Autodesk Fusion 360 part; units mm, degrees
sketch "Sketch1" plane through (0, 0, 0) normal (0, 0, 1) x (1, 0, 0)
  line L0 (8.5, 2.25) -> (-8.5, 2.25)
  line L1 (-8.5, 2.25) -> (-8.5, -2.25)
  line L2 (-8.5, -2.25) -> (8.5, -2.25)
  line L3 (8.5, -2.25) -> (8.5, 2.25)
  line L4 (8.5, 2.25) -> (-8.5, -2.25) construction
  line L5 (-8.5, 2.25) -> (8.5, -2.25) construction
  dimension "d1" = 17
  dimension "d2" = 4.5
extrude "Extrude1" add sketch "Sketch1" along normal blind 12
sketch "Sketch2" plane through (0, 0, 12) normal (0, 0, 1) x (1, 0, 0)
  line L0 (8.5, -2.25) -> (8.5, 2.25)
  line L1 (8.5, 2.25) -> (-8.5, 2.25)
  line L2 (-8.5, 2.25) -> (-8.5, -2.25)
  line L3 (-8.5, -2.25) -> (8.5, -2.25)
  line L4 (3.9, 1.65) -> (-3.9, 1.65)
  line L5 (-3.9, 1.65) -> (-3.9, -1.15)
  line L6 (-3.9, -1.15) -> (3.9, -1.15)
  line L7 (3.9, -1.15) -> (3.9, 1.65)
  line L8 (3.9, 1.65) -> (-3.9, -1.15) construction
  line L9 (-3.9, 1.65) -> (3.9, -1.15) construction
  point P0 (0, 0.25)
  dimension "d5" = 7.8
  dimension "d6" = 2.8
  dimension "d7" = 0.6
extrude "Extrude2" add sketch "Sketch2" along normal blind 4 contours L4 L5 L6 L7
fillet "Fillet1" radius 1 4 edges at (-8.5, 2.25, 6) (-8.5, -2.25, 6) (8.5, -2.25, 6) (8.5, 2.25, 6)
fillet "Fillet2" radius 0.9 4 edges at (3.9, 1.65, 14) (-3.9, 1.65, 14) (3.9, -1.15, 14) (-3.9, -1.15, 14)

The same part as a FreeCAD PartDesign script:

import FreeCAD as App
import Part
import Sketcher


def edges_at(feature, points):
    """Names of the edges that pass closest to the given points."""
    edges = feature.Shape.Edges
    near = lambda p: min(range(len(edges)), key=lambda i: edges[i].distToShape(Part.Vertex(*p))[0])
    return sorted({f"Edge{near(p) + 1}" for p in points})


def add_polygon(sketch, points):
    """Adds a closed chain of lines whose ends are joined by coincident constraints."""
    first, n = sketch.GeometryCount, len(points)
    for a, b in zip(points, points[1:] + points[:1]):
        sketch.addGeometry(Part.LineSegment(App.Vector(*a, 0), App.Vector(*b, 0)), False)
    for i in range(n):
        sketch.addConstraint(Sketcher.Constraint("Coincident", first + i, 2, first + (i + 1) % n, 1))

doc = App.newDocument("Part")
body = doc.addObject("PartDesign::Body", "Body")

# Sketch on XY plane
sketch1 = body.newObject("Sketcher::SketchObject", "Sketch")
sketch1.AttachmentSupport = (doc.getObject("XY_Plane"), [""])
sketch1.MapMode = "FlatFace"
add_polygon(sketch1, [(8.5, -2.2), (8.5, 2.2), (-8.5, 2.2), (-8.5, -2.2)])  # lines 0-3
sketch1.addConstraint([
    Sketcher.Constraint("Vertical", 0),
    Sketcher.Constraint("Horizontal", 1),
    Sketcher.Constraint("Vertical", 2),
    Sketcher.Constraint("Horizontal", 3),
    Sketcher.Constraint("Symmetric", 0, 2, 2, 2, -1, 1),
    Sketcher.Constraint("DistanceX", 1, 2, 1, 1, 17.0),
    Sketcher.Constraint("DistanceY", 0, 1, 0, 2, 4.5),
])
pad1 = body.newObject("PartDesign::Pad", "Pad")
pad1.Profile = sketch1
pad1.Length = 12

# Sketch on XY plane
sketch2 = body.newObject("Sketcher::SketchObject", "Sketch001")
sketch2.AttachmentSupport = (doc.getObject("XY_Plane"), [""])
sketch2.MapMode = "FlatFace"
sketch2.AttachmentOffset = App.Placement(App.Vector(0, 0, 12), App.Rotation())
add_polygon(sketch2, [(3.9, -1.1), (3.9, 1.6), (-3.9, 1.6), (-3.9, -1.1)])  # lines 0-3
sketch2.addConstraint([
    Sketcher.Constraint("Vertical", 0),
    Sketcher.Constraint("Horizontal", 1),
    Sketcher.Constraint("Vertical", 2),
    Sketcher.Constraint("Horizontal", 3),
    Sketcher.Constraint("DistanceX", 1, 2, 1, 1, 7.8),
    Sketcher.Constraint("DistanceY", 0, 1, 0, 2, 2.8),
    Sketcher.Constraint("DistanceX", -1, 1, 0, 2, 3.9),
    Sketcher.Constraint("DistanceY", -1, 1, 0, 2, 1.65),
])
pad2 = body.newObject("PartDesign::Pad", "Pad001")
pad2.Profile = sketch2
pad2.Length = 4
doc.recompute()

fillet = body.newObject("PartDesign::Fillet", "Fillet")
fillet.Base = (pad2, edges_at(pad2, [
    (-8.5, 2.25, 6),
    (-8.5, -2.25, 6),
    (8.5, -2.25, 6),
    (8.5, 2.25, 6),
]))
fillet.Radius = 1
doc.recompute()

fillet2 = body.newObject("PartDesign::Fillet", "Fillet001")
fillet2.Base = (fillet, edges_at(fillet, [
    (3.9, 1.65, 14),
    (-3.9, 1.65, 14),
    (3.9, -1.15, 14),
    (-3.9, -1.15, 14),
]))
fillet2.Radius = 0.9

doc.recompute()
